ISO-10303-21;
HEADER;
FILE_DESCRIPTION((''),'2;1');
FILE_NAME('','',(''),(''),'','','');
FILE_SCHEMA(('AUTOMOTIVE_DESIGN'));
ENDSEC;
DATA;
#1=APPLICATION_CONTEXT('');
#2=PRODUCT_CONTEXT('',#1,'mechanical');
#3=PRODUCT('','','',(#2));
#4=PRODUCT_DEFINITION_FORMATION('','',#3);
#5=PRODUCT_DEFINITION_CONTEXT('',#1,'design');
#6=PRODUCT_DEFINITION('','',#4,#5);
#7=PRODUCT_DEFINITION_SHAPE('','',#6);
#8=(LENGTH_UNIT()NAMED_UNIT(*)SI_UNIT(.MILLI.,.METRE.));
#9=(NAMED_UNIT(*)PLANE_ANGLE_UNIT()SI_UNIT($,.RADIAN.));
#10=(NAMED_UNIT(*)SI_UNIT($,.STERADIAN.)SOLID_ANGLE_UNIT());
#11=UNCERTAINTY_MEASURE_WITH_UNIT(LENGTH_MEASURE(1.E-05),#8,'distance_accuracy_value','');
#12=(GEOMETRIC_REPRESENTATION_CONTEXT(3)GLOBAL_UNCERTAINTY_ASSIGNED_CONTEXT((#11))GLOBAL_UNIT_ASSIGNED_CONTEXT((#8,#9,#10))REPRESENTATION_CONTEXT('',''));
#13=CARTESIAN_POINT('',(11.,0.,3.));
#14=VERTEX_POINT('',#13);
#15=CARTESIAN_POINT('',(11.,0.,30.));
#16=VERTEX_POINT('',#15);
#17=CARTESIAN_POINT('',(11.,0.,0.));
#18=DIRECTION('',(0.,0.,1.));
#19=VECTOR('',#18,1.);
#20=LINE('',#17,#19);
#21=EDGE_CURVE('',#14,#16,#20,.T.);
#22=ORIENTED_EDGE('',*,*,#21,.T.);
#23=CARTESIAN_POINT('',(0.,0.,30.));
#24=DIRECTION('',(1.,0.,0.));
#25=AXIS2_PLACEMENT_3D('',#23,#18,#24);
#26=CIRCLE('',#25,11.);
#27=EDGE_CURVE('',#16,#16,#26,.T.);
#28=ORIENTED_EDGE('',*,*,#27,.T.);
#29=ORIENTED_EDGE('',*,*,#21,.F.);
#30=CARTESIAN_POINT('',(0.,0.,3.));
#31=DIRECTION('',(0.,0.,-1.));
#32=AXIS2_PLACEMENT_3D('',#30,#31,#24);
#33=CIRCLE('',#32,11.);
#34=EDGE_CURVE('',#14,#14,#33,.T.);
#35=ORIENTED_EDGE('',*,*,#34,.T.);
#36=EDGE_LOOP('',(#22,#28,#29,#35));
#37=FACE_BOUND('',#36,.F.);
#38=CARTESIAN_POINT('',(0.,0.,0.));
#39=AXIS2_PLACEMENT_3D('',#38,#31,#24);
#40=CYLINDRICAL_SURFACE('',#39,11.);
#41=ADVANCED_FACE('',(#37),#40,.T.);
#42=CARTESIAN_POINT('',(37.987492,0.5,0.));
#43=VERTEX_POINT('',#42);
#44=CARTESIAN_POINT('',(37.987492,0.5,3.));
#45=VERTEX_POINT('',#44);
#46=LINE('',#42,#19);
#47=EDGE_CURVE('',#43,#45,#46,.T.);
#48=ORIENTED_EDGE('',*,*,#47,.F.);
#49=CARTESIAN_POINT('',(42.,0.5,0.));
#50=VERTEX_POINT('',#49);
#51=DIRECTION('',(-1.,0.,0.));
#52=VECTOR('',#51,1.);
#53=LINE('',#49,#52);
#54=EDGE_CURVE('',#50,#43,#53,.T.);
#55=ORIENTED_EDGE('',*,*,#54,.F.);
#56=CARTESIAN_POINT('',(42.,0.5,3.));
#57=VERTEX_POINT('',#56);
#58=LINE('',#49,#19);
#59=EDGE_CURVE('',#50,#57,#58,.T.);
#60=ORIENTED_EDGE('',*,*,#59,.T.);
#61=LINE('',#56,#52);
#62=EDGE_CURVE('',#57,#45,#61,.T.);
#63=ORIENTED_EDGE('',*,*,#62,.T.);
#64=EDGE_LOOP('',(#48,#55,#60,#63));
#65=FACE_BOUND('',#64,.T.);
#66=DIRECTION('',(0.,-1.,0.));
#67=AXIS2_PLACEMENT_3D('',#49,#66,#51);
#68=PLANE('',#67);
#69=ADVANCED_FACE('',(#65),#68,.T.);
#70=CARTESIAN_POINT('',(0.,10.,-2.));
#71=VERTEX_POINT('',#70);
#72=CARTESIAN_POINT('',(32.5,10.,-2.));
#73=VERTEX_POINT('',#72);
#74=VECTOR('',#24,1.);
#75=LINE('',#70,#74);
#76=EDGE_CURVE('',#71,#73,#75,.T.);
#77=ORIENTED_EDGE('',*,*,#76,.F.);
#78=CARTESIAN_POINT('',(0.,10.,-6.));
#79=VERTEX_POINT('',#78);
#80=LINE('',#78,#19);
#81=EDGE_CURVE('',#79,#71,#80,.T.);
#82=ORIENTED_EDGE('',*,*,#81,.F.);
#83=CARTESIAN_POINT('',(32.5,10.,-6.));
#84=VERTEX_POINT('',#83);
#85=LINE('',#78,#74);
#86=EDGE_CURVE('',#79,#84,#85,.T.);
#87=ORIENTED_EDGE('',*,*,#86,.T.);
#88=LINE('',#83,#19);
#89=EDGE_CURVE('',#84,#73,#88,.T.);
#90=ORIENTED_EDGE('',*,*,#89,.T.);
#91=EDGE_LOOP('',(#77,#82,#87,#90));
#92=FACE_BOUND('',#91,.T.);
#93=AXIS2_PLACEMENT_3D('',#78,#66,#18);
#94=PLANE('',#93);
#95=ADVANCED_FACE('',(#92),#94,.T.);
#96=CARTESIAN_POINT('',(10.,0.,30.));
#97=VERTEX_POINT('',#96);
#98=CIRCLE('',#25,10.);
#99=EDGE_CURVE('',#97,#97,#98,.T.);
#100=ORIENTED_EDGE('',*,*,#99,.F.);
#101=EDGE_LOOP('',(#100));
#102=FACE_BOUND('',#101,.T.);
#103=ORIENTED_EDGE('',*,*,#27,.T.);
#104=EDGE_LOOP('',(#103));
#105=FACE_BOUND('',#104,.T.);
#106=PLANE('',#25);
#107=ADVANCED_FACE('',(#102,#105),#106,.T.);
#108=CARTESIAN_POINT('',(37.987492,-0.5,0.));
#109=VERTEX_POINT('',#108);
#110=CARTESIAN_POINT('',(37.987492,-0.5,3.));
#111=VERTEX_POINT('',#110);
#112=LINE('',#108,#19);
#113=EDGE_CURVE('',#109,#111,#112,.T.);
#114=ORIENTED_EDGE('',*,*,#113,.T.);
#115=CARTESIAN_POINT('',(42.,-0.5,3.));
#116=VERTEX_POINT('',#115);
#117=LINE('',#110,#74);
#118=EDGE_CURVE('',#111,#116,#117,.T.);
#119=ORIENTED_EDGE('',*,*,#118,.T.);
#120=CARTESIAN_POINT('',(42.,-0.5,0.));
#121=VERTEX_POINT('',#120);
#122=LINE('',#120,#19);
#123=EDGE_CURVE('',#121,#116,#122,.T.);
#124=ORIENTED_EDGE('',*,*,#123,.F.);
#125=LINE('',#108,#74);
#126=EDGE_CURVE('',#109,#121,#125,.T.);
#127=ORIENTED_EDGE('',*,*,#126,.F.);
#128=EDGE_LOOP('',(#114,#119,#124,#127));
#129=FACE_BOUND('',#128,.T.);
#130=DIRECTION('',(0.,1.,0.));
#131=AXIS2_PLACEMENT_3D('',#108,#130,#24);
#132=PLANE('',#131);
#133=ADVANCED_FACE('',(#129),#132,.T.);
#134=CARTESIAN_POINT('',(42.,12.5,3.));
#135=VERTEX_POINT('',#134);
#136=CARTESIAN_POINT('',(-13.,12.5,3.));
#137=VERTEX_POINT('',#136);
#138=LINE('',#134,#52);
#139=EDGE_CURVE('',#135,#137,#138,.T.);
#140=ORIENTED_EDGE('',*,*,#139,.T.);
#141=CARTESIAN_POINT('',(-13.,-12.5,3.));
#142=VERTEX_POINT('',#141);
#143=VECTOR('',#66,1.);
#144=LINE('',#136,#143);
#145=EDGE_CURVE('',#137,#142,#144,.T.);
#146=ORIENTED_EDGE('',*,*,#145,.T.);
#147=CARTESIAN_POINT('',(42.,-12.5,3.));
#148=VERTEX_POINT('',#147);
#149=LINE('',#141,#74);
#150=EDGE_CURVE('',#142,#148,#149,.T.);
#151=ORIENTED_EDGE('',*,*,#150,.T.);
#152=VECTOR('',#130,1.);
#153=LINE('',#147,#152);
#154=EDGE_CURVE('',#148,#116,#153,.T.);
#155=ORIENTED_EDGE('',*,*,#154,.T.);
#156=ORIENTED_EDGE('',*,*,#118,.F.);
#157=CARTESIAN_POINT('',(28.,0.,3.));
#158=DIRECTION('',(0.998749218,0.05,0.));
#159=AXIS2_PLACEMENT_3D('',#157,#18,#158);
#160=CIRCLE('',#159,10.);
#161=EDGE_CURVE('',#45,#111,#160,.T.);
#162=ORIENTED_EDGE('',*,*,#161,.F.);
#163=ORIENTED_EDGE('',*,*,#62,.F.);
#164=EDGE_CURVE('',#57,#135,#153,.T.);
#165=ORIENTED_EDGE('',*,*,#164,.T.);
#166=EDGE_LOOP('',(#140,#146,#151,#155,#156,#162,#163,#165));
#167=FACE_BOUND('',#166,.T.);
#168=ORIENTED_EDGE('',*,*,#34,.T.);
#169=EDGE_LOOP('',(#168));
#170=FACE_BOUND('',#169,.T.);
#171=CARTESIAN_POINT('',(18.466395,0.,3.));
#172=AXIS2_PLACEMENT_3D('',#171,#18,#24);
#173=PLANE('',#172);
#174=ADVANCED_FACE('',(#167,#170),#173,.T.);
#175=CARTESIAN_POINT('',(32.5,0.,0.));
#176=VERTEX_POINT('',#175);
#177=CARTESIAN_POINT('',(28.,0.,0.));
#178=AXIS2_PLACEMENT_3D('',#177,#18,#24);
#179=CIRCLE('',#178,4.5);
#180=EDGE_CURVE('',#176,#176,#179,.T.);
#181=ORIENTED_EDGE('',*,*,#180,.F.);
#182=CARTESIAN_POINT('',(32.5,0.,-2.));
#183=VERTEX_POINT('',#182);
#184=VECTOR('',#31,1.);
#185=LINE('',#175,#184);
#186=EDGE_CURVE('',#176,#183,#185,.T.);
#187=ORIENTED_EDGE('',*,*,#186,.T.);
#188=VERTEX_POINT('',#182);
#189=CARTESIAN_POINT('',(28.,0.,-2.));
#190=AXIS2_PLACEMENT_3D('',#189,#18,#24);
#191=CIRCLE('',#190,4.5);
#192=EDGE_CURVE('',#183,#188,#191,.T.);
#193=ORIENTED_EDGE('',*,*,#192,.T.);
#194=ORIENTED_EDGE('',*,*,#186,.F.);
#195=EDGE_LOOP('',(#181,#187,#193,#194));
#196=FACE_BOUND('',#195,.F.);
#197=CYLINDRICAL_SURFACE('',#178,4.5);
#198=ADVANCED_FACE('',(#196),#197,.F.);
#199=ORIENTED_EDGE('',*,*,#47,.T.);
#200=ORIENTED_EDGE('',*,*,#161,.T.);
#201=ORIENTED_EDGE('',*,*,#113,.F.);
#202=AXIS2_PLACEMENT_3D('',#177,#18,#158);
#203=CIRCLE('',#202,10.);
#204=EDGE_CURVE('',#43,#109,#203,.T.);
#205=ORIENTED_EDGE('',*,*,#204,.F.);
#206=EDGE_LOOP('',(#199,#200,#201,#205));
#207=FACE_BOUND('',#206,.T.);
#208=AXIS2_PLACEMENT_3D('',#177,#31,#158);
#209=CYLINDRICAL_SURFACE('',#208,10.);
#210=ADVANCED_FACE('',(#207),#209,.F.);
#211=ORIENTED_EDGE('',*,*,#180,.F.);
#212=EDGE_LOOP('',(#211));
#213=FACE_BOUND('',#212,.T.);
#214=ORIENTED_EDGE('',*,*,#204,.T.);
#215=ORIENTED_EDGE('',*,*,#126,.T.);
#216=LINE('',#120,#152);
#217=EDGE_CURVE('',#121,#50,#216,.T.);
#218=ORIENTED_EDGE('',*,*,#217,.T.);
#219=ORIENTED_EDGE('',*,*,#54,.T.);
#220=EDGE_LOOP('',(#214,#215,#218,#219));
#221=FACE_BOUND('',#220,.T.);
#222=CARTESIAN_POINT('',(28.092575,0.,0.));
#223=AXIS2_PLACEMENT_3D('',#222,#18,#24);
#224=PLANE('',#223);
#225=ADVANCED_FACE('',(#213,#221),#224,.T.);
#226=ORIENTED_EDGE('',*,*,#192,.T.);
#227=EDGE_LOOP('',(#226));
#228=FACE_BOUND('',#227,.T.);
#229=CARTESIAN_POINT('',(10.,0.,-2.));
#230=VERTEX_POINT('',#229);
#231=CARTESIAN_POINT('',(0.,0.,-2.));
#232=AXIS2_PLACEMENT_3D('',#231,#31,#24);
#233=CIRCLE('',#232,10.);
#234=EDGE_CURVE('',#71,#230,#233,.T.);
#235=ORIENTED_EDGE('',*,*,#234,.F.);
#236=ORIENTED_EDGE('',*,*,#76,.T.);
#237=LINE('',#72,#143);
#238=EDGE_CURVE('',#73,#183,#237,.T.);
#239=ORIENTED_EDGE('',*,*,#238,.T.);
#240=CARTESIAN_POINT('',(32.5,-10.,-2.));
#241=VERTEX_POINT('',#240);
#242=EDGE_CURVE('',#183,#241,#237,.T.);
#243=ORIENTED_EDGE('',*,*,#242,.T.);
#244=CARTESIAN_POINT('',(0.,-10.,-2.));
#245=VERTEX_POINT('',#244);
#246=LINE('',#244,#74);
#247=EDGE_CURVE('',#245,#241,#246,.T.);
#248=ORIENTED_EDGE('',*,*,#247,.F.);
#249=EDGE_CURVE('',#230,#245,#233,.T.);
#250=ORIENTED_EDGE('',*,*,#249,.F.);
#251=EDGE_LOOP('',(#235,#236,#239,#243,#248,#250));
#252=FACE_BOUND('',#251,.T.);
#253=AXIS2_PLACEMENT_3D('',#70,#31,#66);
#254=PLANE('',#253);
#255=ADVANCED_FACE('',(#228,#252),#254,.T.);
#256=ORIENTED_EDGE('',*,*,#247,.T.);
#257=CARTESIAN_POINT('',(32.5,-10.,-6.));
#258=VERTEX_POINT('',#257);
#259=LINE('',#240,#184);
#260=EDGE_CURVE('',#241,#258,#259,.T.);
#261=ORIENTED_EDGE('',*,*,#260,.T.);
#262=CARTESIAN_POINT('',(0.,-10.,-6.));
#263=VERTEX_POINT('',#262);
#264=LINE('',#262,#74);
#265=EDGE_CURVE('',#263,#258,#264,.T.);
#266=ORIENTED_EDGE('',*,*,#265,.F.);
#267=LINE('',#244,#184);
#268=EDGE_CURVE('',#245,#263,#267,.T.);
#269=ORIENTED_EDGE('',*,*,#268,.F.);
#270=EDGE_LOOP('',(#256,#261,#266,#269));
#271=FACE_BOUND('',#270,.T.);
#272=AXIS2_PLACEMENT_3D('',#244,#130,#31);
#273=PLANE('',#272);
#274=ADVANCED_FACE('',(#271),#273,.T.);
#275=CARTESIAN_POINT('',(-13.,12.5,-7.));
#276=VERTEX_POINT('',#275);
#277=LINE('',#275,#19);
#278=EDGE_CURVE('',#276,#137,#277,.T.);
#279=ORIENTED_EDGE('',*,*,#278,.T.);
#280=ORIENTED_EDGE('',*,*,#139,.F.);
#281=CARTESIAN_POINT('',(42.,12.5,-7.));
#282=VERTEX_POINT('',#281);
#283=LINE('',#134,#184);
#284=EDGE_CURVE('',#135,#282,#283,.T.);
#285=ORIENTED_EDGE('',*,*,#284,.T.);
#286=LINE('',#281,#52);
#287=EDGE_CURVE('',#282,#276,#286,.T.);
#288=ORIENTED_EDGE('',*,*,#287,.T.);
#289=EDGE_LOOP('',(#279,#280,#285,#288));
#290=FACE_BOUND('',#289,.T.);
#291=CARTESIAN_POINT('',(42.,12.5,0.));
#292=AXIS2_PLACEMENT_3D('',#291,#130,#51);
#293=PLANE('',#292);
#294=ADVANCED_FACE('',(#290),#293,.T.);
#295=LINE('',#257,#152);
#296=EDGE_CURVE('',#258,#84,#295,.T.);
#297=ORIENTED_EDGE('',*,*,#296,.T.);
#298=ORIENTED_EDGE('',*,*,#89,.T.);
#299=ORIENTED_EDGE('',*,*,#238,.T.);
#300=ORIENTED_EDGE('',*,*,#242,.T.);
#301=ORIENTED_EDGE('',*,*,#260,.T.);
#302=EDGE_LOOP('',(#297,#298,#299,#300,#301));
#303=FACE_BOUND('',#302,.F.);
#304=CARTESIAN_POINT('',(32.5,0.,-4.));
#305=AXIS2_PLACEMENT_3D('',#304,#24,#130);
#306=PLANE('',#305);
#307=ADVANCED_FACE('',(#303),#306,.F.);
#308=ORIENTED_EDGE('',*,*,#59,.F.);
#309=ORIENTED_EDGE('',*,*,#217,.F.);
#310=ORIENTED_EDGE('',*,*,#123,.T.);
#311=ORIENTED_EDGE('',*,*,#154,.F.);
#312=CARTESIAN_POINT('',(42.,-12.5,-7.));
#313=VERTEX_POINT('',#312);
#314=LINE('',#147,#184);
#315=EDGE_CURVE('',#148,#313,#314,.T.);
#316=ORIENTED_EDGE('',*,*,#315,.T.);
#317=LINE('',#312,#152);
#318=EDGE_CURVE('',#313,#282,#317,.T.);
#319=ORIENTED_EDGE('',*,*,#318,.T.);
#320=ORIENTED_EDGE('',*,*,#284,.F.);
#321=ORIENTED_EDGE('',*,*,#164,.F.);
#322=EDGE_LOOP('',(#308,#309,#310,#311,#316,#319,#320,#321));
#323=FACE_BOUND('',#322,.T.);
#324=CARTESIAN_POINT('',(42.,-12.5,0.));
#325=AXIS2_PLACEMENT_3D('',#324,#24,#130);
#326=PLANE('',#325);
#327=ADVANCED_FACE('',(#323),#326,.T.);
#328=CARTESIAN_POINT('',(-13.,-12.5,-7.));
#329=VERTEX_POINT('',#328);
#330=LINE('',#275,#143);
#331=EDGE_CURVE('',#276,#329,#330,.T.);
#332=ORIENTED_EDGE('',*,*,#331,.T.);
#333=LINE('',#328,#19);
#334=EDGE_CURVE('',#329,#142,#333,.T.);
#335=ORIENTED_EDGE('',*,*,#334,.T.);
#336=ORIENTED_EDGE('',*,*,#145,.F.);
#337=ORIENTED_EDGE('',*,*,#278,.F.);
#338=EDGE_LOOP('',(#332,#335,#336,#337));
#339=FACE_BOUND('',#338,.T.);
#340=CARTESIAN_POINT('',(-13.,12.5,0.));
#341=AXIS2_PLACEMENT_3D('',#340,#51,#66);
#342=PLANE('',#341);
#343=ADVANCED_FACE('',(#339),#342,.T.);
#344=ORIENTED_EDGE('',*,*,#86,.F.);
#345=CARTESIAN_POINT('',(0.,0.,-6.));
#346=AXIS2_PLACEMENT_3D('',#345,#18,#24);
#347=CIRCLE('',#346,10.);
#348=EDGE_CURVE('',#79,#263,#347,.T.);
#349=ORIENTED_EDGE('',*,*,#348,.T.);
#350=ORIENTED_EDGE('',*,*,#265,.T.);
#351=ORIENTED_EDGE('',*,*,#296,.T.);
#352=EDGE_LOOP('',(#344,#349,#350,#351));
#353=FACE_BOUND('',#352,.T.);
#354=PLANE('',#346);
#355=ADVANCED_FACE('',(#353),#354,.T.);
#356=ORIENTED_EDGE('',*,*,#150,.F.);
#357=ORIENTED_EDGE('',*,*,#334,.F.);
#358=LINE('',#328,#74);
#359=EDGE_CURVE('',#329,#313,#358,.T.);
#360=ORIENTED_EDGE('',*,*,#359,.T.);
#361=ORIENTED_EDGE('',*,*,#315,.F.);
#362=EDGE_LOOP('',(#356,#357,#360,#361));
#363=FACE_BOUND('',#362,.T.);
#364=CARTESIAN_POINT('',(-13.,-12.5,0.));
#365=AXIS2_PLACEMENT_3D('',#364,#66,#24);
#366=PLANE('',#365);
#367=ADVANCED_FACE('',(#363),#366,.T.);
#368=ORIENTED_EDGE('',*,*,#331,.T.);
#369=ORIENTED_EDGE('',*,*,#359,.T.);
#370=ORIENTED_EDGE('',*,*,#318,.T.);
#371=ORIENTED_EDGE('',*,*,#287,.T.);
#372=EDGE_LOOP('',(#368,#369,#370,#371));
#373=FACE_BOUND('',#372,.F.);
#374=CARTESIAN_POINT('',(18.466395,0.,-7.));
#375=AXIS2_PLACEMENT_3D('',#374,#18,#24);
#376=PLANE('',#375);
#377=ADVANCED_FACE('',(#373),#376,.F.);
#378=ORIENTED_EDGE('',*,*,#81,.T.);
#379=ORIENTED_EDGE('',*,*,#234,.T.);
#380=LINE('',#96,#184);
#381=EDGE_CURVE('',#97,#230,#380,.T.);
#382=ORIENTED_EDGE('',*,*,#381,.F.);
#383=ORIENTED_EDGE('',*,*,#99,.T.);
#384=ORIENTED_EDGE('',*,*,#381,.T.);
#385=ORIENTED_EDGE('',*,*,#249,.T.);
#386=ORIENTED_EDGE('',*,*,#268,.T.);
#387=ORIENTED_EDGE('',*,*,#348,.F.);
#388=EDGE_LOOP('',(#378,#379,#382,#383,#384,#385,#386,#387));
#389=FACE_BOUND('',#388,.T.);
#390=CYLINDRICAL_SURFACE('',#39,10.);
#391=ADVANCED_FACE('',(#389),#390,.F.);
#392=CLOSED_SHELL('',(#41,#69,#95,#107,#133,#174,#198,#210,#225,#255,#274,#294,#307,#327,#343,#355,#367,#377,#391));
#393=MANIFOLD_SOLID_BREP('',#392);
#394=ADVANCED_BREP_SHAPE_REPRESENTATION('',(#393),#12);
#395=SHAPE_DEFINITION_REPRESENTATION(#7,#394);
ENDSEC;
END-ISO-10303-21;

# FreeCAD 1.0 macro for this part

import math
import FreeCAD as App
import Part
import Sketcher

V = App.Vector
Q = App.Units.Quantity

doc = App.newDocument("Part")
body = doc.addObject("PartDesign::Body", "Body")

sketch1 = body.newObject("Sketcher::SketchObject", "Sketch")
sketch1.AttachmentSupport = (doc.getObject("XY_Plane"), [""])
sketch1.MapMode = "FlatFace"
sketch1.addGeometry([
    Part.LineSegment(V(42, 12, 0), V(-13, 12, 0)),
    Part.LineSegment(V(-13, 12, 0), V(-13, -12, 0)),
    Part.LineSegment(V(-13, -12, 0), V(42, -12, 0)),
    Part.LineSegment(V(42, -12, 0), V(42, 12, 0)),
], False)
sketch1.addConstraint([
    Sketcher.Constraint("Coincident", 0, 2, 1, 1),
    Sketcher.Constraint("Coincident", 1, 2, 2, 1),
    Sketcher.Constraint("Coincident", 2, 2, 3, 1),
    Sketcher.Constraint("Coincident", 3, 2, 0, 1),
    Sketcher.Constraint("Horizontal", 0),
    Sketcher.Constraint("Vertical", 1),
    Sketcher.Constraint("Horizontal", 2),
    Sketcher.Constraint("Vertical", 3),
    Sketcher.Constraint("DistanceX", 0, 2, 0, 1, Q("55 mm")),
    Sketcher.Constraint("DistanceY", 1, 2, 1, 1, Q("25 mm")),
    Sketcher.Constraint("DistanceX", 0, 2, -1, 1, Q("13 mm")),
    Sketcher.Constraint("DistanceY", -1, 1, 0, 2, Q("12.5 mm")),
])
pad1 = body.newObject("PartDesign::Pad", "Pad")
pad1.Profile = sketch1
pad1.Type = "TwoLengths"
pad1.Length = 3
pad1.Length2 = 7

sketch2 = body.newObject("Sketcher::SketchObject", "Sketch001")
sketch2.AttachmentSupport = (doc.getObject("XY_Plane"), [""])
sketch2.MapMode = "FlatFace"
sketch2.addGeometry([
    Part.Circle(V(0, 0, 0), V(0, 0, 1), 10),
    Part.ArcOfCircle(Part.Circle(V(28, 0, 0), V(0, 0, 1), 10), math.radians(3), math.radians(357)),
    Part.LineSegment(V(38, -0.5, 0), V(42, -0.5, 0)),
    Part.LineSegment(V(42, -0.5, 0), V(42, 0.5, 0)),
    Part.LineSegment(V(42, 0.5, 0), V(38, 0.5, 0)),
], False)
sketch2.addConstraint([
    Sketcher.Constraint("Coincident", 1, 2, 2, 1),
    Sketcher.Constraint("Coincident", 2, 2, 3, 1),
    Sketcher.Constraint("Coincident", 3, 2, 4, 1),
    Sketcher.Constraint("Coincident", 4, 2, 1, 1),
    Sketcher.Constraint("Horizontal", 2),
    Sketcher.Constraint("Vertical", 3),
    Sketcher.Constraint("Horizontal", 4),
    Sketcher.Constraint("Coincident", 0, 3, -1, 1),
    Sketcher.Constraint("Equal", 0, 1),
    Sketcher.Constraint("Symmetric", 1, 2, 4, 2, -1),
    Sketcher.Constraint("Diameter", 0, Q("20 mm")),
    Sketcher.Constraint("DistanceY", 3, 1, 3, 2, Q("1 mm")),
    Sketcher.Constraint("DistanceX", -1, 1, 1, 3, Q("28 mm")),
    Sketcher.Constraint("DistanceX", -1, 1, 2, 2, Q("42 mm")),
])
pocket1 = body.newObject("PartDesign::Pocket", "Pocket")
pocket1.Profile = sketch2
pocket1.Length = 3
pocket1.Reversed = True

sketch3 = body.newObject("Sketcher::SketchObject", "Sketch002")
sketch3.AttachmentSupport = (doc.getObject("XY_Plane"), [""])
sketch3.MapMode = "FlatFace"
sketch3.addGeometry([
    Part.Circle(V(28, 0, 0), V(0, 0, 1), 4.5),
    Part.Circle(V(0, 0, 0), V(0, 0, 1), 10),
], False)
sketch3.addConstraint([
    Sketcher.Constraint("Coincident", 1, 3, -1, 1),
    Sketcher.Constraint("PointOnObject", 0, 3, -1),
    Sketcher.Constraint("Diameter", 0, Q("9 mm")),
    Sketcher.Constraint("Diameter", 1, Q("20 mm")),
    Sketcher.Constraint("DistanceX", -1, 1, 0, 3, Q("28 mm")),
])
pocket2 = body.newObject("PartDesign::Pocket", "Pocket001")
pocket2.Profile = sketch3
pocket2.Length = 6

sketch4 = body.newObject("Sketcher::SketchObject", "Sketch003")
sketch4.AttachmentSupport = (doc.getObject("YZ_Plane"), [""])
sketch4.MapMode = "FlatFace"
sketch4.addGeometry([
    Part.LineSegment(V(10, -2, 0), V(-10, -2, 0)),
    Part.LineSegment(V(-10, -2, 0), V(-10, -6, 0)),
    Part.LineSegment(V(-10, -6, 0), V(10, -6, 0)),
    Part.LineSegment(V(10, -6, 0), V(10, -2, 0)),
], False)
sketch4.addConstraint([
    Sketcher.Constraint("Coincident", 0, 2, 1, 1),
    Sketcher.Constraint("Coincident", 1, 2, 2, 1),
    Sketcher.Constraint("Coincident", 2, 2, 3, 1),
    Sketcher.Constraint("Coincident", 3, 2, 0, 1),
    Sketcher.Constraint("Horizontal", 0),
    Sketcher.Constraint("Vertical", 1),
    Sketcher.Constraint("Horizontal", 2),
    Sketcher.Constraint("Vertical", 3),
    Sketcher.Constraint("DistanceX", 0, 2, 0, 1, Q("20 mm")),
    Sketcher.Constraint("DistanceY", 1, 2, 1, 1, Q("4 mm")),
    Sketcher.Constraint("DistanceX", 0, 2, -1, 1, Q("10 mm")),
    Sketcher.Constraint("DistanceY", 0, 2, -1, 1, Q("2 mm")),
])
pocket3 = body.newObject("PartDesign::Pocket", "Pocket002")
pocket3.Profile = sketch4
pocket3.Length = 32.5
pocket3.Reversed = True

sketch5 = body.newObject("Sketcher::SketchObject", "Sketch004")
sketch5.AttachmentSupport = (doc.getObject("XY_Plane"), [""])
sketch5.MapMode = "FlatFace"
sketch5.addGeometry([
    Part.Circle(V(0, 0, 0), V(0, 0, 1), 11),
    Part.Circle(V(0, 0, 0), V(0, 0, 1), 10),
], False)
sketch5.addConstraint([
    Sketcher.Constraint("Coincident", 0, 3, -1, 1),
    Sketcher.Constraint("Coincident", 1, 3, -1, 1),
    Sketcher.Constraint("Diameter", 0, Q("22 mm")),
    Sketcher.Constraint("Diameter", 1, Q("20 mm")),
])
pad2 = body.newObject("PartDesign::Pad", "Pad001")
pad2.Profile = sketch5
pad2.Length = 30

doc.recompute()
